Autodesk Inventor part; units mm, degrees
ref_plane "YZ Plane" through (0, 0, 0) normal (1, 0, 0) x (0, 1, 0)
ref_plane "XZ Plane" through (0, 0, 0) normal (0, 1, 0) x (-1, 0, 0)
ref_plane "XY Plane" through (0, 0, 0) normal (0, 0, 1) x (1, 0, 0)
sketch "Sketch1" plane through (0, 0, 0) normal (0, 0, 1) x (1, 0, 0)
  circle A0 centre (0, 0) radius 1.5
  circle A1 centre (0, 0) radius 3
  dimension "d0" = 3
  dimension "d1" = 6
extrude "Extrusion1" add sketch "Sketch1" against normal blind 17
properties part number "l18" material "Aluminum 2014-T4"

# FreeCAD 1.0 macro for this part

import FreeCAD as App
import Part
import Sketcher

V = App.Vector

doc = App.newDocument("Part")
body = doc.addObject("PartDesign::Body", "Body")

# Sketch on XY plane
sketch1 = body.newObject("Sketcher::SketchObject", "Sketch")
sketch1.AttachmentSupport = (doc.getObject("XY_Plane"), [""])
sketch1.MapMode = "FlatFace"
sketch1.addGeometry(Part.Circle(V(0, 0, 0), V(0, 0, 1), 3), False)
sketch1.addGeometry(Part.Circle(V(0, 0, 0), V(0, 0, 1), 1.5), False)
sketch1.addConstraint(Sketcher.Constraint("Coincident", 0, 3, -1, 1))
sketch1.addConstraint(Sketcher.Constraint("Coincident", 1, 3, -1, 1))
sketch1.addConstraint(Sketcher.Constraint("Diameter", 0, 6.0))
sketch1.addConstraint(Sketcher.Constraint("Diameter", 1, 3.0))
pad1 = body.newObject("PartDesign::Pad", "Pad")
pad1.Profile = sketch1
pad1.Length = 17
pad1.Reversed = True

doc.recompute()
